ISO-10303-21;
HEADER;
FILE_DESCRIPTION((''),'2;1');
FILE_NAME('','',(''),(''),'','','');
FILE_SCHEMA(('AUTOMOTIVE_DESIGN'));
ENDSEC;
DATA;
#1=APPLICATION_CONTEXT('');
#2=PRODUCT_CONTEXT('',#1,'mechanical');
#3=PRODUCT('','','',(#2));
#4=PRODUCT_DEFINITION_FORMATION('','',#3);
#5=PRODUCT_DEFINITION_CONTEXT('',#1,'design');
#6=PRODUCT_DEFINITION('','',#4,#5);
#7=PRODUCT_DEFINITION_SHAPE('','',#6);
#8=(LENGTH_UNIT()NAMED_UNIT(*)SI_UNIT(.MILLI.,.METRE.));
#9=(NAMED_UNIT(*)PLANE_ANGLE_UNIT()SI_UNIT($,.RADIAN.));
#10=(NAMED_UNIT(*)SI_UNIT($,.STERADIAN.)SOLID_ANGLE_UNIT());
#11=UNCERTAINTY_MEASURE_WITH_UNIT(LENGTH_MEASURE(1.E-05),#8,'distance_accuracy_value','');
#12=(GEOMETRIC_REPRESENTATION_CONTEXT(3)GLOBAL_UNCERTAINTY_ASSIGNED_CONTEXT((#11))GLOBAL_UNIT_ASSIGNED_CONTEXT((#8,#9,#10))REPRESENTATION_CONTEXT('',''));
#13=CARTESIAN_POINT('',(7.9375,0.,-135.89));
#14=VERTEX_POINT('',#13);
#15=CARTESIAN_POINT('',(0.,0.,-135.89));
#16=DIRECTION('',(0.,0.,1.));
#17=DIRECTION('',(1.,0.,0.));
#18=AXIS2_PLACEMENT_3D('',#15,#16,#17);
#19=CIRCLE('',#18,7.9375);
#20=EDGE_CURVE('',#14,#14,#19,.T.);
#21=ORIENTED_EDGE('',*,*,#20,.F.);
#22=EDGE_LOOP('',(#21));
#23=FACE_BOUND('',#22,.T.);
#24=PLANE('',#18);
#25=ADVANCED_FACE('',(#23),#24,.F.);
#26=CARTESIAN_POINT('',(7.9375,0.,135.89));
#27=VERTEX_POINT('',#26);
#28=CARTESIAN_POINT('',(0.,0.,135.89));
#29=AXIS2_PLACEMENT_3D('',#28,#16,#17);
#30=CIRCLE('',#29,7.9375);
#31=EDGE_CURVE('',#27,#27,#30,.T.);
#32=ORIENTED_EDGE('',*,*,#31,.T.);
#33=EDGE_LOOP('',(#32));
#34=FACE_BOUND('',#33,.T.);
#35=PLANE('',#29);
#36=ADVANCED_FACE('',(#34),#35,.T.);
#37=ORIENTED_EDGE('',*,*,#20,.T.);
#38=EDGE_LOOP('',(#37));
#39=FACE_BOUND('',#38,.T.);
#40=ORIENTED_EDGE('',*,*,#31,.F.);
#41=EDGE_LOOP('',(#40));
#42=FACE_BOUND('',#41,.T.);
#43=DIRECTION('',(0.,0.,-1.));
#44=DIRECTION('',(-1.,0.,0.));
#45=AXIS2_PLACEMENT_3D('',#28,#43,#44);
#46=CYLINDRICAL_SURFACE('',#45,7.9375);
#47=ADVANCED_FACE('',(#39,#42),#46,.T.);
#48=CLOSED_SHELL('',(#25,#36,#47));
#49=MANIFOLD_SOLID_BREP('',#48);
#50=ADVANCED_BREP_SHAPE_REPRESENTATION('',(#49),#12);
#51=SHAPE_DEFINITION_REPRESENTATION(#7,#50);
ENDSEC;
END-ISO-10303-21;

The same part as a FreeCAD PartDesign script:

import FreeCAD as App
import Part
import Sketcher

V = App.Vector
Q = App.Units.Quantity

doc = App.newDocument("Part")
body = doc.addObject("PartDesign::Body", "Body")

sketch1 = body.newObject("Sketcher::SketchObject", "Sketch")
sketch1.AttachmentSupport = (doc.getObject("XY_Plane"), [""])
sketch1.MapMode = "FlatFace"
sketch1.addGeometry(Part.Circle(V(0, 0, 0), V(0, 0, 1), 8), False)
sketch1.addConstraint([
    Sketcher.Constraint("Coincident", 0, 3, -1, 1),
    Sketcher.Constraint("Diameter", 0, Q("0.625 in")),
])
pad1 = body.newObject("PartDesign::Pad", "Pad")
pad1.Profile = sketch1
pad1.Length = Q("10.7 in")
pad1.Midplane = True

doc.recompute()
